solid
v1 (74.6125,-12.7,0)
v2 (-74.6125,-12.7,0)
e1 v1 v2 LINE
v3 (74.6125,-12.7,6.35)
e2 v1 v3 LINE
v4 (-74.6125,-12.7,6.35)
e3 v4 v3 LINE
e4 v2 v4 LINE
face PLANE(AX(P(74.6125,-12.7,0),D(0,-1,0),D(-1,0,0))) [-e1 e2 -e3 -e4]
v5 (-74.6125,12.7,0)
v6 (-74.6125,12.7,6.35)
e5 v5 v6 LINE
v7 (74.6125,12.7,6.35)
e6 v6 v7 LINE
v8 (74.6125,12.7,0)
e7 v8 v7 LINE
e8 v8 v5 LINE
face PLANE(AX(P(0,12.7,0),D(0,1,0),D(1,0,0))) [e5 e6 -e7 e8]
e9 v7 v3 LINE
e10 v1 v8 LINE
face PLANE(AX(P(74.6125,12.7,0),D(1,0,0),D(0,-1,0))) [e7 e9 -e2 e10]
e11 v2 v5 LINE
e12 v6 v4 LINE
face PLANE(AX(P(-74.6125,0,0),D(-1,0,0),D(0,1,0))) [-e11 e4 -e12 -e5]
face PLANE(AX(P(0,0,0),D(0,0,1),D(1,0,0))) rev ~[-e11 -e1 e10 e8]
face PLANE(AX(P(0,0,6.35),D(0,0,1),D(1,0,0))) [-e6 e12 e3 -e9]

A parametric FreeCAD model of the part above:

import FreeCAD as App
import Part
import Sketcher
from FreeCAD import Vector
Q = App.Units.Quantity

doc = App.newDocument("Part")
body = doc.addObject("PartDesign::Body", "Body")

# Sketch on XY plane
sketch1 = body.newObject("Sketcher::SketchObject", "Sketch")
sketch1.AttachmentSupport = (doc.getObject("XY_Plane"), [""])
sketch1.MapMode = "FlatFace"
sketch1.addGeometry([
    Part.LineSegment(Vector(74.6125, 12.7, 0), Vector(-74.6125, 12.7, 0)),
    Part.LineSegment(Vector(-74.6125, 12.7, 0), Vector(-74.6125, -12.7, 0)),
    Part.LineSegment(Vector(-74.6125, -12.7, 0), Vector(74.6125, -12.7, 0)),
    Part.LineSegment(Vector(74.6125, -12.7, 0), Vector(74.6125, 12.7, 0)),
], False)
sketch1.addConstraint([
    Sketcher.Constraint("Coincident", 0, 2, 1, 1),
    Sketcher.Constraint("Coincident", 1, 2, 2, 1),
    Sketcher.Constraint("Coincident", 2, 2, 3, 1),
    Sketcher.Constraint("Coincident", 3, 2, 0, 1),
    Sketcher.Constraint("Horizontal", 0),
    Sketcher.Constraint("Vertical", 1),
    Sketcher.Constraint("Horizontal", 2),
    Sketcher.Constraint("Vertical", 3),
    Sketcher.Constraint("Symmetric", 0, 2, 2, 2, -1, 1),
    Sketcher.Constraint("DistanceY", 1, 2, 1, 1, Q("1 in")),
    Sketcher.Constraint("DistanceX", 0, 2, 0, 1, Q("5.875 in")),
])
pad1 = body.newObject("PartDesign::Pad", "Pad")
pad1.Profile = sketch1
pad1.Length = Q("0.25 in")

doc.recompute()
